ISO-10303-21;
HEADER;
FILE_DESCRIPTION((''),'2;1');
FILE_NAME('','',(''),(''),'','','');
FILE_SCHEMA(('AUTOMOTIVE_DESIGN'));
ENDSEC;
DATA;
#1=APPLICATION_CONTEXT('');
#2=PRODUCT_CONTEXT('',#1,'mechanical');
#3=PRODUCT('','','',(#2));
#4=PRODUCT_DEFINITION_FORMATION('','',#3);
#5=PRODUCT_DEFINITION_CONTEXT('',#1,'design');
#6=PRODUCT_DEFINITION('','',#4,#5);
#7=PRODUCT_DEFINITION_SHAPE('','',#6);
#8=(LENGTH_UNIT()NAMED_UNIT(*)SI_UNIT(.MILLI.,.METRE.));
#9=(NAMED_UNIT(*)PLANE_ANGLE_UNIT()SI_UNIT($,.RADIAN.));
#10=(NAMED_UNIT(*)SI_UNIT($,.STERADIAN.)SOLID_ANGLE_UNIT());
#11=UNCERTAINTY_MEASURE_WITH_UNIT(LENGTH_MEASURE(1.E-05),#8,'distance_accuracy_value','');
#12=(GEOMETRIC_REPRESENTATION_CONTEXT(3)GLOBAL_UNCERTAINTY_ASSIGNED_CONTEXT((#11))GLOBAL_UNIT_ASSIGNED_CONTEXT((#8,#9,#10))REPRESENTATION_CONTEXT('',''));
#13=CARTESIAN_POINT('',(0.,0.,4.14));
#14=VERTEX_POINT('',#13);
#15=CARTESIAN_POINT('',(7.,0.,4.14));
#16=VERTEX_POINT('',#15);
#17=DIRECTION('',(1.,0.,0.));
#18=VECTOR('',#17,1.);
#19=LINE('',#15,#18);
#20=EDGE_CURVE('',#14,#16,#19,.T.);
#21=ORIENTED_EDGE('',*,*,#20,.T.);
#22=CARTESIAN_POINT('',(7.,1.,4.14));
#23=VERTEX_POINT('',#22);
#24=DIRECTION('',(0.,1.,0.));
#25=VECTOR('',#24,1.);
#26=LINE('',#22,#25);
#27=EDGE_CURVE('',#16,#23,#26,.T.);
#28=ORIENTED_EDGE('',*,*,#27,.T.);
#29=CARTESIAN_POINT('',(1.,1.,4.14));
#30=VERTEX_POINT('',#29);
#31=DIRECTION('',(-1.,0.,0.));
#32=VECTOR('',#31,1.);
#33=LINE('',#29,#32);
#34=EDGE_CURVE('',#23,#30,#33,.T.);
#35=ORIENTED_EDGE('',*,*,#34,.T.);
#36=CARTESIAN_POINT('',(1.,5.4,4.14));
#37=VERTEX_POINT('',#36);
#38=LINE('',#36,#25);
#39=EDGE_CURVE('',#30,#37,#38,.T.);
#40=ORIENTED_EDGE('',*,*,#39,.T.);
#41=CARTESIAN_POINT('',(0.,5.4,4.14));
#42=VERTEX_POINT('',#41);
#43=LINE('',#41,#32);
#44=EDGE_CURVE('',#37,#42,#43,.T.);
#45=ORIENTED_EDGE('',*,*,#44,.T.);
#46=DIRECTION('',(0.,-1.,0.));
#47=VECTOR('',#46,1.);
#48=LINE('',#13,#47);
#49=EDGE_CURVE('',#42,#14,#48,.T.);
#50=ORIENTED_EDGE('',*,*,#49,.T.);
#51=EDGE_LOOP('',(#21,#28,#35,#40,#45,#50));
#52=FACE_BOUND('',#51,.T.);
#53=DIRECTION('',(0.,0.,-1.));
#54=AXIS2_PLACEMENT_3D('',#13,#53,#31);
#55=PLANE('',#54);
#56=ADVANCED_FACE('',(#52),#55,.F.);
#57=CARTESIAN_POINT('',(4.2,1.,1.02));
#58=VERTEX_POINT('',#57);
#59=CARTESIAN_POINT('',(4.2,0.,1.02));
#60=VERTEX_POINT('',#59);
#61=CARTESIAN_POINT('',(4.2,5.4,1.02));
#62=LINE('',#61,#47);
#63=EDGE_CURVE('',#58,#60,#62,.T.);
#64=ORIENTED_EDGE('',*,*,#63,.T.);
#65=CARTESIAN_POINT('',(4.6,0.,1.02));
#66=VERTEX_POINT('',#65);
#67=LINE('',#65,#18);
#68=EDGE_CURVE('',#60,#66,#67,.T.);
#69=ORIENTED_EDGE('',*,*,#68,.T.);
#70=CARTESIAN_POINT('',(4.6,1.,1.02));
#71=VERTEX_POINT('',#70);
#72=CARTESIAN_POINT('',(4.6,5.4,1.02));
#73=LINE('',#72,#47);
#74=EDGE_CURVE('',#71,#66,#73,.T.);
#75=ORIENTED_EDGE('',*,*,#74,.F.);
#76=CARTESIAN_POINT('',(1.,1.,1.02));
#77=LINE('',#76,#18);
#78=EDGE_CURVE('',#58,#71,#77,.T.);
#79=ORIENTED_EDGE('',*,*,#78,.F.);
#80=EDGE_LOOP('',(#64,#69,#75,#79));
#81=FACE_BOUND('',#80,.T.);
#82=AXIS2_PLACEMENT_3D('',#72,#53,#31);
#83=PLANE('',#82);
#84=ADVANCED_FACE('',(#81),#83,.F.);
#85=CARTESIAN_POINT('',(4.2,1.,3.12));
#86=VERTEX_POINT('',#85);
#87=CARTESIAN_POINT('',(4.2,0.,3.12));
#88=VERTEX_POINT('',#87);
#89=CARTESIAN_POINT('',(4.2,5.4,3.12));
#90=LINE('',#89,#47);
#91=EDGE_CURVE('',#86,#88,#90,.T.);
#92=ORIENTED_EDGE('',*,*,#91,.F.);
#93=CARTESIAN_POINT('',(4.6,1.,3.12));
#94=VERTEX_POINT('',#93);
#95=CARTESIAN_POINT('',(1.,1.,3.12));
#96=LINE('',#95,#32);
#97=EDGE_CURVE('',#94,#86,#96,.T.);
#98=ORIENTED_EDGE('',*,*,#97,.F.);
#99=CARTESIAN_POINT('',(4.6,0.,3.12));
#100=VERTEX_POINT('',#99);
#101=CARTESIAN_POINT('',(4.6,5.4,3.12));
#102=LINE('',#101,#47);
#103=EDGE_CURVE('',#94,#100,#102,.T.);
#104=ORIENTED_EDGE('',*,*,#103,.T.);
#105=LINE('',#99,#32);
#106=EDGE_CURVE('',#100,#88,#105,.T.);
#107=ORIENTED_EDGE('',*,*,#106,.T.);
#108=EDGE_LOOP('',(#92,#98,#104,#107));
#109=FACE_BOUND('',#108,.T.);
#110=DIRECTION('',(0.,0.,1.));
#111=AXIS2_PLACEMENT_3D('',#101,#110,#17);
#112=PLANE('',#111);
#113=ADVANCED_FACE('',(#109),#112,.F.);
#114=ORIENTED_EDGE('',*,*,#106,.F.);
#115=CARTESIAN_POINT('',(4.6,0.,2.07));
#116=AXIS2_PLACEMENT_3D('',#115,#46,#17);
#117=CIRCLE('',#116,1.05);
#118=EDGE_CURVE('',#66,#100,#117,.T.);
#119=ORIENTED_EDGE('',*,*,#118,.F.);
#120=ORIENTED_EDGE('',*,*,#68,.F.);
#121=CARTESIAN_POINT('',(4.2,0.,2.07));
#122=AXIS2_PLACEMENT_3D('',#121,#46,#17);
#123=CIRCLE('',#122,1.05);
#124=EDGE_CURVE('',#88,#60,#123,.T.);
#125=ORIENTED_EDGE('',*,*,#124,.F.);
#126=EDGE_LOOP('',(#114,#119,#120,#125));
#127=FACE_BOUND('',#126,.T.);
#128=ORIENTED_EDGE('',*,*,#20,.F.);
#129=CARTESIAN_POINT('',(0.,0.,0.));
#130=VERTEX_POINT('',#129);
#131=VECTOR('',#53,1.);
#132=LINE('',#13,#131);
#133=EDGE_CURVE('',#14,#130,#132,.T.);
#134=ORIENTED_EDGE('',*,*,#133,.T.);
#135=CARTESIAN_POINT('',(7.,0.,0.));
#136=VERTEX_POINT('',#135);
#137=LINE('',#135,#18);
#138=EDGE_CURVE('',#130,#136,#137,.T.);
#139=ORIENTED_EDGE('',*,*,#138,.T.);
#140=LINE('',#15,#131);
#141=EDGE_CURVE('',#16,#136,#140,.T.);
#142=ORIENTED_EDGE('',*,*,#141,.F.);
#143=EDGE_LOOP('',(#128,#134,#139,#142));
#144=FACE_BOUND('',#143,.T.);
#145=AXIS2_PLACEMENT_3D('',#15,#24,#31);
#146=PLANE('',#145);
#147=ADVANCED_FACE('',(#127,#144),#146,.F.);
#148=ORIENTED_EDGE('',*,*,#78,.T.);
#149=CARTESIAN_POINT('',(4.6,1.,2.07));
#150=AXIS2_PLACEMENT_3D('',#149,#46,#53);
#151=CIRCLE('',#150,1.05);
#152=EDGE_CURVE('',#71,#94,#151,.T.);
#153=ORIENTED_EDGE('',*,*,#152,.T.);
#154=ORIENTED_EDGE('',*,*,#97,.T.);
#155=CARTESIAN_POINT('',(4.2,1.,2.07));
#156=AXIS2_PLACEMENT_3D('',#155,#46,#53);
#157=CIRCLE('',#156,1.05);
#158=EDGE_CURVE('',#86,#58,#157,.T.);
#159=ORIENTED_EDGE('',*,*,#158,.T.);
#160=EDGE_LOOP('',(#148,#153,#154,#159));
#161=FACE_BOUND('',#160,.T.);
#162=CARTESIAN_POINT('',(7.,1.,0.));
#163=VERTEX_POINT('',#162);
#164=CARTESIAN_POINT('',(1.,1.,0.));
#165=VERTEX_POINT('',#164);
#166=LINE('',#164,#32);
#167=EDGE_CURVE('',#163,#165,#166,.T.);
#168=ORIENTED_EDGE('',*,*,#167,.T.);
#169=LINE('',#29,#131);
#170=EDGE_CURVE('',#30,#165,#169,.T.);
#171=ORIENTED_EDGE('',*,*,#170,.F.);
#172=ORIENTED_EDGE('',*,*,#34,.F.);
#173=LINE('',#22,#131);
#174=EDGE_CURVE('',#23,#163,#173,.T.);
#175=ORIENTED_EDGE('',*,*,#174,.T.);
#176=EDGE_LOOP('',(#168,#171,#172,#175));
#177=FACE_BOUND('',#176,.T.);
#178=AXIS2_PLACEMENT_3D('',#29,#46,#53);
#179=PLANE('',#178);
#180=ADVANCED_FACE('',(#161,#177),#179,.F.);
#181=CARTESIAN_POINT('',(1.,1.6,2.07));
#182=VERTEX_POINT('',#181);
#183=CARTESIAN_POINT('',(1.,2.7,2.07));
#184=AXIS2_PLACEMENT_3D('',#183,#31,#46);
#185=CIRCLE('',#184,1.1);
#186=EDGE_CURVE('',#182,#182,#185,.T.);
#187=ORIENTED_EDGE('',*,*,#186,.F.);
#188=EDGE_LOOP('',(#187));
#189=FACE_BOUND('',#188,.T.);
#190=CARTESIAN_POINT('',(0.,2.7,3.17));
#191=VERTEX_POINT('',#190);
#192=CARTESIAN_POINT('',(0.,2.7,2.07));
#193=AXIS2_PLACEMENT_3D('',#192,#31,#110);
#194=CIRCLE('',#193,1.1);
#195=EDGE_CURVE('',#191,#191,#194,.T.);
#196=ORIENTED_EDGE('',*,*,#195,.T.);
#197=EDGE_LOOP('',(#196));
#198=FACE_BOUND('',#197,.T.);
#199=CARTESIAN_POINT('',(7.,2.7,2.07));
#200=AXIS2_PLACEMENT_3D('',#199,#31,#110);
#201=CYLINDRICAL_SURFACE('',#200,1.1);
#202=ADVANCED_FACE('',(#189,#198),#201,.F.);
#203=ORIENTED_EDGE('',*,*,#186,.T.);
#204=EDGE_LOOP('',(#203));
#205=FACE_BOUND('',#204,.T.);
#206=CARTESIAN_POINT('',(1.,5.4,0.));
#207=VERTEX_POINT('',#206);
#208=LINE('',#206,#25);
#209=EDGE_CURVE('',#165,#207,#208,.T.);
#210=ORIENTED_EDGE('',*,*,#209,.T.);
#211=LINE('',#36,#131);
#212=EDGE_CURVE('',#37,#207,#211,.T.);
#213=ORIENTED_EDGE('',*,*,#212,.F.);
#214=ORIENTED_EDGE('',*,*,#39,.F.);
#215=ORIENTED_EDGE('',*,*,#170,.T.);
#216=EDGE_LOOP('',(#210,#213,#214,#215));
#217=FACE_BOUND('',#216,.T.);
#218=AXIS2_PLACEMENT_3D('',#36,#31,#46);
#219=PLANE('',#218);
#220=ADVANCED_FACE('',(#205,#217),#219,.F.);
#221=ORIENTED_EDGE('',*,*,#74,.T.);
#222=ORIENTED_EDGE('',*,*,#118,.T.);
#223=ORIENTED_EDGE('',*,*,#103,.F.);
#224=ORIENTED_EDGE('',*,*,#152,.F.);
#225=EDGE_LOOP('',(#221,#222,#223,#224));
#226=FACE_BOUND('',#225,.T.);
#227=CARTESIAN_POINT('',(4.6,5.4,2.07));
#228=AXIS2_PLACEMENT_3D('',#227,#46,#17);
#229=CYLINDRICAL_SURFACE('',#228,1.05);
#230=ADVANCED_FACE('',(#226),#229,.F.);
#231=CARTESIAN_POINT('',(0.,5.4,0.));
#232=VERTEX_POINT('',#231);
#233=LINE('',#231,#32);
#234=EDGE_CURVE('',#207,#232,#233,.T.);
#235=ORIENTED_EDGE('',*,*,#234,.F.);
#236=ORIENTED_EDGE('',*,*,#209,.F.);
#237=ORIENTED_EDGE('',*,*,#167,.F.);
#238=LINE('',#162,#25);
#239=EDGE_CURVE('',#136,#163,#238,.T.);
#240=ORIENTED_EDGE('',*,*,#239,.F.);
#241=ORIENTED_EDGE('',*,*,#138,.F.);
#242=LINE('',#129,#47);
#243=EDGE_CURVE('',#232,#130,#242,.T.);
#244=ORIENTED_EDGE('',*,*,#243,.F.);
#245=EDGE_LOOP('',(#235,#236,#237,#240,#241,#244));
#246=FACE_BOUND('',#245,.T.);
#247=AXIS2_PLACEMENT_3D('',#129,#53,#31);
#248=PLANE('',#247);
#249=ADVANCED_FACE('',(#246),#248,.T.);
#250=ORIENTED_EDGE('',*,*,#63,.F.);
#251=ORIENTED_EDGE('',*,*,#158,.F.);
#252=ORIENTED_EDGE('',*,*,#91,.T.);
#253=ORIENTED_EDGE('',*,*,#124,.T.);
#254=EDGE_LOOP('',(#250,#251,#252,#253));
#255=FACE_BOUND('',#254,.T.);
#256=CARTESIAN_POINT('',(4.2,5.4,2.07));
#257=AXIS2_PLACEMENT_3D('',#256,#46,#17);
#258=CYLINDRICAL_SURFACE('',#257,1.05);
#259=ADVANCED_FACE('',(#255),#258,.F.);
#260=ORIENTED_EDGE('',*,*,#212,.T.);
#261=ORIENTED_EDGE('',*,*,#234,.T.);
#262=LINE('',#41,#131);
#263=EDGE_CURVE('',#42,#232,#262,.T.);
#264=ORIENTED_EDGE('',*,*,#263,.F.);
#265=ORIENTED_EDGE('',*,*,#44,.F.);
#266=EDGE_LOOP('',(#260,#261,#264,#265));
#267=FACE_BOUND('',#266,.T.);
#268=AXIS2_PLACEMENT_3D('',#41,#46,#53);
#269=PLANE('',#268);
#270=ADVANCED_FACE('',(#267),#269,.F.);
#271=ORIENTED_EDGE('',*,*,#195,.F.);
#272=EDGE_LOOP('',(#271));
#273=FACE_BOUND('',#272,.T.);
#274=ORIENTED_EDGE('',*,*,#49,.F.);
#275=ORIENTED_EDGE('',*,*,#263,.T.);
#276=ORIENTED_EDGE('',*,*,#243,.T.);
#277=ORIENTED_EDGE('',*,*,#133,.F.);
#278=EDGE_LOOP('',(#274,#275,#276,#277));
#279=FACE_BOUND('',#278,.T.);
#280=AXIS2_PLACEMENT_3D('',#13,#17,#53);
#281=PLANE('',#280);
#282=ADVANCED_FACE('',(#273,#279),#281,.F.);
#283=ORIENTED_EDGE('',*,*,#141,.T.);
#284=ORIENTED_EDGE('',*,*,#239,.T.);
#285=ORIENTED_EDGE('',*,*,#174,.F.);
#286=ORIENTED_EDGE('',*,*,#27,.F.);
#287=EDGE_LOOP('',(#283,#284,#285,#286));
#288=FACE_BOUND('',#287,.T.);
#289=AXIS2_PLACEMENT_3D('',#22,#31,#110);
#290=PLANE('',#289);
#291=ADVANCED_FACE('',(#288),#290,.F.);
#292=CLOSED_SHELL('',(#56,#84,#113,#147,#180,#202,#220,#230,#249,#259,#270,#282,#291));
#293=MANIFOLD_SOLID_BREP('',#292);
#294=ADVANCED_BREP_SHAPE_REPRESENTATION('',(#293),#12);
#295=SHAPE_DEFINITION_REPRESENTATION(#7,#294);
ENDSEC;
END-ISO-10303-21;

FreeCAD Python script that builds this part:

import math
import FreeCAD as App
import Part
import Sketcher

V = App.Vector

doc = App.newDocument("Part")
body = doc.addObject("PartDesign::Body", "Body")

# Sketch on XY plane
sketch1 = body.newObject("Sketcher::SketchObject", "Sketch")
sketch1.AttachmentSupport = (doc.getObject("XY_Plane"), [""])
sketch1.MapMode = "FlatFace"
sketch1.addGeometry([
    Part.LineSegment(V(0, 5.4, 0), V(0, 0, 0)),  # 0
    Part.LineSegment(V(0, 0, 0), V(7, 0, 0)),  # 1
    Part.LineSegment(V(7, 0, 0), V(7, 1, 0)),  # 2
    Part.LineSegment(V(7, 1, 0), V(1, 1, 0)),  # 3
    Part.LineSegment(V(1, 1, 0), V(1, 5.4, 0)),  # 4
    Part.LineSegment(V(1, 5.4, 0), V(0, 5.4, 0)),  # 5
], False)
sketch1.addConstraint([
    Sketcher.Constraint("Coincident", 0, 2, 1, 1),
    Sketcher.Constraint("Coincident", 1, 2, 2, 1),
    Sketcher.Constraint("Coincident", 2, 2, 3, 1),
    Sketcher.Constraint("Coincident", 3, 2, 4, 1),
    Sketcher.Constraint("Coincident", 4, 2, 5, 1),
    Sketcher.Constraint("Coincident", 5, 2, 0, 1),
    Sketcher.Constraint("Vertical", 0),
    Sketcher.Constraint("Horizontal", 1),
    Sketcher.Constraint("Vertical", 2),
    Sketcher.Constraint("Horizontal", 3),
    Sketcher.Constraint("Vertical", 4),
    Sketcher.Constraint("Horizontal", 5),
    Sketcher.Constraint("Coincident", 0, 2, -1, 1),
    Sketcher.Constraint("Equal", 5, 2),
    Sketcher.Constraint("DistanceX", 1, 1, 1, 2, 7.0),
    Sketcher.Constraint("DistanceX", 3, 2, 3, 1, 6.0),
    Sketcher.Constraint("DistanceY", 0, 2, 0, 1, 5.4),
])
pad1 = body.newObject("PartDesign::Pad", "Pad")
pad1.Profile = sketch1
pad1.Length = 4.14

# Sketch on YZ plane
sketch2 = body.newObject("Sketcher::SketchObject", "Sketch001")
sketch2.AttachmentSupport = (doc.getObject("YZ_Plane"), [""])
sketch2.MapMode = "FlatFace"
sketch2.addGeometry(Part.Circle(V(2.7, 2.1, 0), V(0, 0, 1), 1.1), False)
sketch2.addConstraint([
    Sketcher.Constraint("Diameter", 0, 2.2),
    Sketcher.Constraint("DistanceX", -1, 1, 0, 3, 2.7),
    Sketcher.Constraint("DistanceY", -1, 1, 0, 3, 2.07),
])
pocket1 = body.newObject("PartDesign::Pocket", "Pocket")
pocket1.Profile = sketch2
pocket1.Type = "ThroughAll"
pocket1.Reversed = True

# Sketch on XZ plane
sketch3 = body.newObject("Sketcher::SketchObject", "Sketch002")
sketch3.AttachmentSupport = (doc.getObject("XZ_Plane"), [""])
sketch3.MapMode = "FlatFace"
sketch3.addGeometry([
    Part.LineSegment(V(4.2, 1.02, 0), V(4.6, 1.02, 0)),
    Part.ArcOfCircle(Part.Circle(V(4.6, 2.07, 0), V(0, 0, 1), 1.05), math.radians(-90), math.radians(90)),
    Part.LineSegment(V(4.6, 3.12, 0), V(4.2, 3.12, 0)),
    Part.ArcOfCircle(Part.Circle(V(4.2, 2.07, 0), V(0, 0, 1), 1.05), math.radians(90), math.radians(270)),
], False)
sketch3.addConstraint([
    Sketcher.Constraint("Tangent", 0, 2, 1, 1),
    Sketcher.Constraint("Tangent", 1, 2, 2, 1),
    Sketcher.Constraint("Tangent", 2, 2, 3, 1),
    Sketcher.Constraint("Tangent", 3, 2, 0, 1),
    Sketcher.Constraint("Horizontal", 0),
    Sketcher.Constraint("Horizontal", 2),
    Sketcher.Constraint("Radius", 1, 1.05),
    Sketcher.Constraint("DistanceX", 0, 1, 0, 2, 0.4),
    Sketcher.Constraint("DistanceX", -1, 1, 1, 3, 4.6),
    Sketcher.Constraint("DistanceY", -1, 1, 1, 3, 2.07),
])
pocket2 = body.newObject("PartDesign::Pocket", "Pocket001")
pocket2.Profile = sketch3
pocket2.Type = "ThroughAll"

doc.recompute()
